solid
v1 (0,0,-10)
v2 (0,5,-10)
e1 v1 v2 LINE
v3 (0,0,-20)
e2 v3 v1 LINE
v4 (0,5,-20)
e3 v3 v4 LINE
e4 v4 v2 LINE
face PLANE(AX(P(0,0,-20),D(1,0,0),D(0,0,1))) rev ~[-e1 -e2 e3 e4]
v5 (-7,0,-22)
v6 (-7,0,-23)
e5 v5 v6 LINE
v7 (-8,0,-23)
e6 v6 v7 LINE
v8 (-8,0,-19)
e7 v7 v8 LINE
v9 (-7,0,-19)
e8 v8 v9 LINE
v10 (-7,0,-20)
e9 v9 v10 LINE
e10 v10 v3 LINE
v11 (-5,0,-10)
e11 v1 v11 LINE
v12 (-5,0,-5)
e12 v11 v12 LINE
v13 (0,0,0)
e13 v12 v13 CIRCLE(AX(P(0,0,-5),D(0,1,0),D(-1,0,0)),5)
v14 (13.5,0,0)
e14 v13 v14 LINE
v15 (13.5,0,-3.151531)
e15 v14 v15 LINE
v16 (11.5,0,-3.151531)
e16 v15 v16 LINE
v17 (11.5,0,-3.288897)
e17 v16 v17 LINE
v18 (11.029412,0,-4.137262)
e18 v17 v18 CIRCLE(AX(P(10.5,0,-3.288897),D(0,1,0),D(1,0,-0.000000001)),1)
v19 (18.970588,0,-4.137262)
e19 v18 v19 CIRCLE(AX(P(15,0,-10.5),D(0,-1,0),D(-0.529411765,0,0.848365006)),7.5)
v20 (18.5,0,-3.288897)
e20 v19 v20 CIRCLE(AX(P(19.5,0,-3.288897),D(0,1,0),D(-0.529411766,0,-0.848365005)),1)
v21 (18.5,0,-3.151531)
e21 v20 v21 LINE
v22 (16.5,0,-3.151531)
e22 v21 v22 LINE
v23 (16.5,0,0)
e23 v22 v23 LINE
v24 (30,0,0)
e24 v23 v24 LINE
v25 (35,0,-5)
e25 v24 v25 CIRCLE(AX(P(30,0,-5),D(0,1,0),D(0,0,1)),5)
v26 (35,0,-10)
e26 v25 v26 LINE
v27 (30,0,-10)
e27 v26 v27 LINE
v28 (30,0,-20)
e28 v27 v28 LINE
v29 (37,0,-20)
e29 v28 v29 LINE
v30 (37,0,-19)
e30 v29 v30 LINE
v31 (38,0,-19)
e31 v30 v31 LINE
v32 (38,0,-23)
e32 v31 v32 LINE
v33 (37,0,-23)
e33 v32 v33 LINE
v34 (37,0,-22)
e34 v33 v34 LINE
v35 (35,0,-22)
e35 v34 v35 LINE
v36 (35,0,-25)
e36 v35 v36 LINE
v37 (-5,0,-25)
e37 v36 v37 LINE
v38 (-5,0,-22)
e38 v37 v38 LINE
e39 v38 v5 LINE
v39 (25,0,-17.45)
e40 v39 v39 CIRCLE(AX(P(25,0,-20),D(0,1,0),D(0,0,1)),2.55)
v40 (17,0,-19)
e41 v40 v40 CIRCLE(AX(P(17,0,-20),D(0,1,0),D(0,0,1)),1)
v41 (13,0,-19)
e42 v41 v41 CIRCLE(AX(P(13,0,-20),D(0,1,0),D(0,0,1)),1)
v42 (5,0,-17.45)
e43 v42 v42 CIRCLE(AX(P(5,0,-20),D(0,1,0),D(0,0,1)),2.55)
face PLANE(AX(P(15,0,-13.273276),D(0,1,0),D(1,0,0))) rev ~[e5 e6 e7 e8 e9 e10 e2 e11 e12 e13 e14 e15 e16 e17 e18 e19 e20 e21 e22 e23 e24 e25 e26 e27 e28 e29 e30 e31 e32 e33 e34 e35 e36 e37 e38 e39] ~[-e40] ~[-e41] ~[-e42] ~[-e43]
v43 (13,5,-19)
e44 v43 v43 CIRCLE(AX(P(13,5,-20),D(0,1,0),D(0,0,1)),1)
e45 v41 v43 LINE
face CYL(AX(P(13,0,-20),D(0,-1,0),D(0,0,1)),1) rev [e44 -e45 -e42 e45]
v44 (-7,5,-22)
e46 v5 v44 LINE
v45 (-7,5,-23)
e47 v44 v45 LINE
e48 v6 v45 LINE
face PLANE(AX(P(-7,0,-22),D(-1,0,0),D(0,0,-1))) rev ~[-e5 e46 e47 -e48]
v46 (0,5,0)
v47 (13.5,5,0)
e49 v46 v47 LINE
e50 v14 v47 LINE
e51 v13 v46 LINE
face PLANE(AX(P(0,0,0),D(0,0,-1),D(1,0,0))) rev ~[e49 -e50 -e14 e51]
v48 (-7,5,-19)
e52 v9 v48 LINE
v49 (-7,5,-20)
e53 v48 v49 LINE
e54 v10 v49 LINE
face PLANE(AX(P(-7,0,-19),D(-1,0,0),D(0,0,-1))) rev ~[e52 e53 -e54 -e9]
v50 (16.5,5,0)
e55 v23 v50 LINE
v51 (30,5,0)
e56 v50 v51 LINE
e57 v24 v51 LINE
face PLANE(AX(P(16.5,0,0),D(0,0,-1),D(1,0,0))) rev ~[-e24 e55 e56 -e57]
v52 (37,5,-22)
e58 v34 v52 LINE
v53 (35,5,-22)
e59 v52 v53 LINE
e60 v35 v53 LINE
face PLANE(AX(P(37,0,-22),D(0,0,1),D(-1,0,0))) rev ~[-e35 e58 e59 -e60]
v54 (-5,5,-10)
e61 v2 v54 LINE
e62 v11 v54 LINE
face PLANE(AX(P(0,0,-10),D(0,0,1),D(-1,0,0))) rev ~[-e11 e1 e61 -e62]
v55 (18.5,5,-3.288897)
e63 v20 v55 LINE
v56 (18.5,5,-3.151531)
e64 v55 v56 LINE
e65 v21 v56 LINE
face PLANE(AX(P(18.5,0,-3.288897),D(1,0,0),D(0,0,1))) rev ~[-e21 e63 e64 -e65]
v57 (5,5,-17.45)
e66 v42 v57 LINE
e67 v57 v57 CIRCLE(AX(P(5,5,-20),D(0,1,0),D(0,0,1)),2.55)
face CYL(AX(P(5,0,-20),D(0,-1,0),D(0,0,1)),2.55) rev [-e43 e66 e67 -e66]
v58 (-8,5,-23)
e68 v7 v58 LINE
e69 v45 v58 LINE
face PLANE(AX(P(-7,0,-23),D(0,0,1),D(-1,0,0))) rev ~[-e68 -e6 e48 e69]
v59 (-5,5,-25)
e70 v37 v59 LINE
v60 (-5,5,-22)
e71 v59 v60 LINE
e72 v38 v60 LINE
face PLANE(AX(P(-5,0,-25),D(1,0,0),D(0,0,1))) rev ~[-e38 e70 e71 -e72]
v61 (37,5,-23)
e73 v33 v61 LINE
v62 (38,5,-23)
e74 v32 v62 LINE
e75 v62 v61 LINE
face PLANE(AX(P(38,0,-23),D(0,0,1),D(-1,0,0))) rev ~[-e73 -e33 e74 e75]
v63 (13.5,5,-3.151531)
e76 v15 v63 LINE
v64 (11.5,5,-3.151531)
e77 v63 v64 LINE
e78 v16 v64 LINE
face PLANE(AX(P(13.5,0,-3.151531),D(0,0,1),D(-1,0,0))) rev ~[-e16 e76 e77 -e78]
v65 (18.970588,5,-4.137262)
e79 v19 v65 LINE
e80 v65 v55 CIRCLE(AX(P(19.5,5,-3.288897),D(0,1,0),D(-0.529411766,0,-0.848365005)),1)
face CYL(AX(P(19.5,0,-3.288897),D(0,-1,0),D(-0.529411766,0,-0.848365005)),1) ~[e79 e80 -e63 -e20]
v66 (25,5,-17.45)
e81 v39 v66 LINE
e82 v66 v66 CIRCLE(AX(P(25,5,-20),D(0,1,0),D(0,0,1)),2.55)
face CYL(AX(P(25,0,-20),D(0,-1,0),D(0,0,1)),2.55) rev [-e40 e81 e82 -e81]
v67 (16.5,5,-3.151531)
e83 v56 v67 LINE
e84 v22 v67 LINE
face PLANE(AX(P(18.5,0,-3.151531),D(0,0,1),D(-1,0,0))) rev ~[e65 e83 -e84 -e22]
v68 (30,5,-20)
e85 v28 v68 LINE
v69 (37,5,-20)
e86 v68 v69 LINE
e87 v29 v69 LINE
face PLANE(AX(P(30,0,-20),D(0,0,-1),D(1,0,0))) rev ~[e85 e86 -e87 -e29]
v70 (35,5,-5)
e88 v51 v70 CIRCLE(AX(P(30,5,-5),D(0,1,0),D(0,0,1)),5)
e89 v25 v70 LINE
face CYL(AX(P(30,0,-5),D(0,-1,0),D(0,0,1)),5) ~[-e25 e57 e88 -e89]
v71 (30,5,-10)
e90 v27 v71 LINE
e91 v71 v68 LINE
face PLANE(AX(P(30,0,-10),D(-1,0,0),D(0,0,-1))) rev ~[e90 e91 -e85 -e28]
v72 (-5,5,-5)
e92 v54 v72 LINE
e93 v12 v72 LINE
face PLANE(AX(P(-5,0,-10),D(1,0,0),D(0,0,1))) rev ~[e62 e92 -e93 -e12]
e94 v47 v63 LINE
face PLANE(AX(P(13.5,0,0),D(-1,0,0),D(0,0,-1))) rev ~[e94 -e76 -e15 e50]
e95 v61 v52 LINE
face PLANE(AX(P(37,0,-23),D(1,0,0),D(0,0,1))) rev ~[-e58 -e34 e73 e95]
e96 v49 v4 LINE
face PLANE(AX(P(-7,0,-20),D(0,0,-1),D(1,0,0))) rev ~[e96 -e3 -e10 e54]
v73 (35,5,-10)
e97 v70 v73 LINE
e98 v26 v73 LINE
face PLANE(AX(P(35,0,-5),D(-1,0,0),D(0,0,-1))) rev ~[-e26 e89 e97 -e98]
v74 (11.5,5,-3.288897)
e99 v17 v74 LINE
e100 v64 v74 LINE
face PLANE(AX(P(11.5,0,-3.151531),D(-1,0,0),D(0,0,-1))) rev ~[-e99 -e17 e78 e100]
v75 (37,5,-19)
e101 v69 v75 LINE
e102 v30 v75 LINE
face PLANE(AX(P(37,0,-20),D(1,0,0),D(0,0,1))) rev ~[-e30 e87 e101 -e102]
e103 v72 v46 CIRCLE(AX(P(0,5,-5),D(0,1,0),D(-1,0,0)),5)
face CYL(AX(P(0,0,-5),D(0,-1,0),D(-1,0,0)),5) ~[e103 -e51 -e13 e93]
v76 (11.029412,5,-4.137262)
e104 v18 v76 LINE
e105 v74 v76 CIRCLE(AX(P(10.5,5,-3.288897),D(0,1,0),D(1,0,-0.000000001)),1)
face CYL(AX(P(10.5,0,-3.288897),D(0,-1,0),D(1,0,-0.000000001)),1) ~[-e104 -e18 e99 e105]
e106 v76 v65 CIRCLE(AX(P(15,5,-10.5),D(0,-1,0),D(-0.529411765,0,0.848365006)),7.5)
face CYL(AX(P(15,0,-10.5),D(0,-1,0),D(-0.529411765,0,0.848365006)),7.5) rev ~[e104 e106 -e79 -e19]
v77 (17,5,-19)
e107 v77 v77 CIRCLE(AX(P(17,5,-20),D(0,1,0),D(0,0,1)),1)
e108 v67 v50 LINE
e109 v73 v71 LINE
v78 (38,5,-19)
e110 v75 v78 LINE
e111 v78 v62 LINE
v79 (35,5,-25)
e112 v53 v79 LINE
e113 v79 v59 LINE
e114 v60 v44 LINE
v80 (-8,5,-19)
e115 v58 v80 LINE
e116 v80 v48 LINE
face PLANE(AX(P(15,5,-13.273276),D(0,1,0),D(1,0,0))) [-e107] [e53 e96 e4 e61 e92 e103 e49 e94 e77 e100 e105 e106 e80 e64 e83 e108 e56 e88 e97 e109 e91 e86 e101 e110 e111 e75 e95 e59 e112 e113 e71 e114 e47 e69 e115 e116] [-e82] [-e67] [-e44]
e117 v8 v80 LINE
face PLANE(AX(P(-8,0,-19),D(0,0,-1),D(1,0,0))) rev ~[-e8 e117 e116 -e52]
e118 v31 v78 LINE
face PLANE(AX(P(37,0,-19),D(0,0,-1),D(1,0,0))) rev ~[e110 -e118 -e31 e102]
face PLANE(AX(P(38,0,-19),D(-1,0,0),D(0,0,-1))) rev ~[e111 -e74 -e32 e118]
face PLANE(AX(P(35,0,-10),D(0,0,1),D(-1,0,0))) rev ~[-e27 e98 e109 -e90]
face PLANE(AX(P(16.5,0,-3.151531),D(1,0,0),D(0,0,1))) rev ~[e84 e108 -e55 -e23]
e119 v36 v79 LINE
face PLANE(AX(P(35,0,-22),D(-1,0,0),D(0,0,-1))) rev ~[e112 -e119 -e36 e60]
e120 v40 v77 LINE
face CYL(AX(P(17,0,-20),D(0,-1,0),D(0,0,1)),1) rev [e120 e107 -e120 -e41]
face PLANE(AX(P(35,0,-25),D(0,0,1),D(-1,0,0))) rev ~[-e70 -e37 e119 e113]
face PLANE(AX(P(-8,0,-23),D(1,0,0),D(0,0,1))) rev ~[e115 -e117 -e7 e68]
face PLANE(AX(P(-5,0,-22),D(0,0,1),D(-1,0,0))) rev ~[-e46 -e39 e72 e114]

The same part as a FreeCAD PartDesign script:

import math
import FreeCAD as App
import Part
import Sketcher
from FreeCAD import Vector
Q = App.Units.Quantity

doc = App.newDocument("Part")
body = doc.addObject("PartDesign::Body", "Body")

# Sketch on XZ plane
sketch1 = body.newObject("Sketcher::SketchObject", "Sketch")
sketch1.AttachmentSupport = (doc.getObject("XZ_Plane"), [""])
sketch1.MapMode = "FlatFace"
sketch1.addGeometry([
    Part.LineSegment(Vector(37, -20, 0), Vector(37, -19, 0)),  # 0
    Part.LineSegment(Vector(37, -19, 0), Vector(38, -19, 0)),  # 1
    Part.LineSegment(Vector(38, -19, 0), Vector(38, -23, 0)),  # 2
    Part.LineSegment(Vector(38, -23, 0), Vector(37, -23, 0)),  # 3
    Part.LineSegment(Vector(37, -23, 0), Vector(37, -22, 0)),  # 4
    Part.LineSegment(Vector(37, -22, 0), Vector(35, -22, 0)),  # 5
    Part.LineSegment(Vector(35, -22, 0), Vector(35, -25, 0)),  # 6
    Part.LineSegment(Vector(35, -25, 0), Vector(-5, -25, 0)),  # 7
    Part.LineSegment(Vector(-5, -25, 0), Vector(-5, -22, 0)),  # 8
    Part.LineSegment(Vector(-5, -22, 0), Vector(-7, -22, 0)),  # 9
    Part.LineSegment(Vector(-7, -22, 0), Vector(-7, -23, 0)),  # 10
    Part.LineSegment(Vector(-7, -23, 0), Vector(-8, -23, 0)),  # 11
    Part.LineSegment(Vector(-8, -23, 0), Vector(-8, -19, 0)),  # 12
    Part.LineSegment(Vector(-8, -19, 0), Vector(-7, -19, 0)),  # 13
    Part.LineSegment(Vector(-7, -19, 0), Vector(-7, -20, 0)),  # 14
    Part.LineSegment(Vector(-7, -20, 0), Vector(0, -20, 0)),  # 15
    Part.LineSegment(Vector(0, -20, 0), Vector(0, -10, 0)),  # 16
    Part.LineSegment(Vector(0, -10, 0), Vector(-5, -10, 0)),  # 17
    Part.LineSegment(Vector(-5, -10, 0), Vector(-5, -5, 0)),  # 18
    Part.ArcOfCircle(Part.Circle(Vector(0, -5, 0), Vector(0, 0, 1), 5), math.radians(90), math.radians(180)),  # 19
    Part.LineSegment(Vector(0, 0, 0), Vector(13.5, 0, 0)),  # 20
    Part.LineSegment(Vector(13.5, 0, 0), Vector(13.5, -3.15, 0)),  # 21
    Part.LineSegment(Vector(13.5, -3.15, 0), Vector(11.5, -3.15, 0)),  # 22
    Part.LineSegment(Vector(11.5, -3.15, 0), Vector(11.5, -3.29, 0)),  # 23
    Part.ArcOfCircle(Part.Circle(Vector(10.5, -3.29, 0), Vector(0, 0, 1), 1), math.radians(-58), math.radians(0)),  # 24
    Part.ArcOfCircle(Part.Circle(Vector(15, -10.5, 0), Vector(0, 0, 1), 7.5), math.radians(122), math.radians(418)),  # 25
    Part.ArcOfCircle(Part.Circle(Vector(19.5, -3.29, 0), Vector(0, 0, 1), 1), math.radians(-180), math.radians(-122)),  # 26
    Part.LineSegment(Vector(18.5, -3.29, 0), Vector(18.5, -3.15, 0)),  # 27
    Part.LineSegment(Vector(18.5, -3.15, 0), Vector(16.5, -3.15, 0)),  # 28
    Part.LineSegment(Vector(16.5, -3.15, 0), Vector(16.5, 0, 0)),  # 29
    Part.LineSegment(Vector(16.5, 0, 0), Vector(30, 0, 0)),  # 30
    Part.ArcOfCircle(Part.Circle(Vector(30, -5, 0), Vector(0, 0, 1), 5), math.radians(0), math.radians(90)),  # 31
    Part.LineSegment(Vector(35, -5, 0), Vector(35, -10, 0)),  # 32
    Part.LineSegment(Vector(35, -10, 0), Vector(30, -10, 0)),  # 33
    Part.LineSegment(Vector(30, -10, 0), Vector(30, -20, 0)),  # 34
    Part.LineSegment(Vector(30, -20, 0), Vector(37, -20, 0)),  # 35
    Part.Circle(Vector(5, -20, 0), Vector(0, 0, 1), 2.55),  # 36
    Part.Circle(Vector(13, -20, 0), Vector(0, 0, 1), 1),  # 37
    Part.Circle(Vector(17, -20, 0), Vector(0, 0, 1), 1),  # 38
    Part.Circle(Vector(25, -20, 0), Vector(0, 0, 1), 2.55),  # 39
], False)
sketch1.addConstraint([
    Sketcher.Constraint("Coincident", 0, 2, 1, 1),
    Sketcher.Constraint("Coincident", 1, 2, 2, 1),
    Sketcher.Constraint("Coincident", 2, 2, 3, 1),
    Sketcher.Constraint("Coincident", 3, 2, 4, 1),
    Sketcher.Constraint("Coincident", 4, 2, 5, 1),
    Sketcher.Constraint("Coincident", 5, 2, 6, 1),
    Sketcher.Constraint("Coincident", 6, 2, 7, 1),
    Sketcher.Constraint("Coincident", 7, 2, 8, 1),
    Sketcher.Constraint("Coincident", 8, 2, 9, 1),
    Sketcher.Constraint("Coincident", 9, 2, 10, 1),
    Sketcher.Constraint("Coincident", 10, 2, 11, 1),
    Sketcher.Constraint("Coincident", 11, 2, 12, 1),
    Sketcher.Constraint("Coincident", 12, 2, 13, 1),
    Sketcher.Constraint("Coincident", 13, 2, 14, 1),
    Sketcher.Constraint("Coincident", 14, 2, 15, 1),
    Sketcher.Constraint("Coincident", 15, 2, 16, 1),
    Sketcher.Constraint("Coincident", 16, 2, 17, 1),
    Sketcher.Constraint("Coincident", 17, 2, 18, 1),
    Sketcher.Constraint("Tangent", 18, 2, 19, 2),
    Sketcher.Constraint("Tangent", 19, 1, 20, 1),
    Sketcher.Constraint("Coincident", 20, 2, 21, 1),
    Sketcher.Constraint("Coincident", 21, 2, 22, 1),
    Sketcher.Constraint("Coincident", 22, 2, 23, 1),
    Sketcher.Constraint("Tangent", 23, 2, 24, 2),
    Sketcher.Constraint("Tangent", 24, 1, 25, 1),
    Sketcher.Constraint("Tangent", 25, 2, 26, 2),
    Sketcher.Constraint("Tangent", 26, 1, 27, 1),
    Sketcher.Constraint("Coincident", 27, 2, 28, 1),
    Sketcher.Constraint("Coincident", 28, 2, 29, 1),
    Sketcher.Constraint("Coincident", 29, 2, 30, 1),
    Sketcher.Constraint("Tangent", 30, 2, 31, 2),
    Sketcher.Constraint("Tangent", 31, 1, 32, 1),
    Sketcher.Constraint("Coincident", 32, 2, 33, 1),
    Sketcher.Constraint("Coincident", 33, 2, 34, 1),
    Sketcher.Constraint("Coincident", 34, 2, 35, 1),
    Sketcher.Constraint("Coincident", 35, 2, 0, 1),
    Sketcher.Constraint("Vertical", 0),
    Sketcher.Constraint("Horizontal", 1),
    Sketcher.Constraint("Vertical", 2),
    Sketcher.Constraint("Horizontal", 3),
    Sketcher.Constraint("Vertical", 4),
    Sketcher.Constraint("Horizontal", 5),
    Sketcher.Constraint("Vertical", 6),
    Sketcher.Constraint("Horizontal", 7),
    Sketcher.Constraint("Vertical", 8),
    Sketcher.Constraint("Horizontal", 9),
    Sketcher.Constraint("Vertical", 10),
    Sketcher.Constraint("Horizontal", 11),
    Sketcher.Constraint("Vertical", 12),
    Sketcher.Constraint("Horizontal", 13),
    Sketcher.Constraint("Vertical", 14),
    Sketcher.Constraint("Horizontal", 15),
    Sketcher.Constraint("Vertical", 16),
    Sketcher.Constraint("Horizontal", 17),
    Sketcher.Constraint("Vertical", 18),
    Sketcher.Constraint("Horizontal", 20),
    Sketcher.Constraint("Vertical", 21),
    Sketcher.Constraint("Horizontal", 22),
    Sketcher.Constraint("Vertical", 23),
    Sketcher.Constraint("Vertical", 27),
    Sketcher.Constraint("Horizontal", 28),
    Sketcher.Constraint("Vertical", 29),
    Sketcher.Constraint("Horizontal", 30),
    Sketcher.Constraint("Vertical", 32),
    Sketcher.Constraint("Horizontal", 33),
    Sketcher.Constraint("Vertical", 34),
    Sketcher.Constraint("Horizontal", 35),
    Sketcher.Constraint("Coincident", 19, 1, -1, 1),
    Sketcher.Constraint("Equal", 24, 26),
    Sketcher.Constraint("Equal", 19, 31),
    Sketcher.Constraint("Equal", 26, 37),
    Sketcher.Constraint("Equal", 37, 38),
    Sketcher.Constraint("Equal", 36, 39),
    Sketcher.Constraint("PointOnObject", 15, 2, -2),
    Sketcher.Constraint("PointOnObject", 29, 2, -1),
    Sketcher.Constraint("Horizontal", 24, 3, 26, 3),
    Sketcher.Constraint("Horizontal", 36, 3, 37, 3),
    Sketcher.Constraint("Horizontal", 37, 3, 38, 3),
    Sketcher.Constraint("Horizontal", 38, 3, 39, 3),
    Sketcher.Constraint("Horizontal", 5, 2, 8, 2),
    Sketcher.Constraint("Horizontal", 3, 2, 10, 2),
    Sketcher.Constraint("Horizontal", 1, 2, 12, 2),
    Sketcher.Constraint("Horizontal", 39, 3, 14, 2),
    Sketcher.Constraint("Horizontal", 22, 2, 27, 2),
    Sketcher.Constraint("Horizontal", 17, 2, 32, 2),
    Sketcher.Constraint("Horizontal", 15, 2, 34, 2),
    Sketcher.Constraint("Vertical", 0, 2, 3, 2),
    Sketcher.Constraint("Vertical", 10, 2, 13, 2),
    Sketcher.Constraint("Vertical", 8, 2, 17, 2),
    Sketcher.Constraint("Vertical", 6, 2, 31, 1),
    Sketcher.Constraint("Vertical", 30, 2, 33, 2),
    Sketcher.Constraint("Equal", 5, 9),
    Sketcher.Constraint("Equal", 3, 11),
    Sketcher.Constraint("Equal", 9, 22),
    Sketcher.Constraint("Equal", 22, 28),
    Sketcher.Constraint("Equal", 20, 30),
    Sketcher.Constraint("Equal", 13, 0),
    Sketcher.Constraint("Equal", 0, 4),
    Sketcher.Constraint("Equal", 33, 18),
    Sketcher.Constraint("Diameter", 37, Q("2 mm")),
    Sketcher.Constraint("Radius", 19, Q("5 mm")),
    Sketcher.Constraint("Diameter", 36, Q("5.1 mm")),
    Sketcher.Constraint("Radius", 25, Q("7.5 mm")),
    Sketcher.Constraint("DistanceX", 1, 1, 1, 2, Q("1 mm")),
    Sketcher.Constraint("DistanceX", 5, 2, 5, 1, Q("2 mm")),
    Sketcher.Constraint("DistanceX", 7, 2, 7, 1, Q("40 mm")),
    Sketcher.Constraint("DistanceY", 2, 2, 2, 1, Q("4 mm")),
    Sketcher.Constraint("DistanceY", 6, 2, 6, 1, Q("3 mm")),
    Sketcher.Constraint("DistanceY", 16, 1, 16, 2, Q("10 mm")),
    Sketcher.Constraint("DistanceX", 20, 1, 20, 2, Q("13.5 mm")),
    Sketcher.Constraint("DistanceX", -1, 1, 36, 3, Q("5 mm")),
    Sketcher.Constraint("DistanceX", -1, 1, 37, 3, Q("13 mm")),
    Sketcher.Constraint("DistanceX", -1, 1, 38, 3, Q("17 mm")),
    Sketcher.Constraint("DistanceX", -1, 1, 39, 3, Q("25 mm")),
    Sketcher.Constraint("DistanceY", 25, 3, -1, 1, Q("10.5 mm")),
    Sketcher.Constraint("DistanceY", 21, 2, 21, 1, Q("3.151531 mm")),
])
pad1 = body.newObject("PartDesign::Pad", "Pad")
pad1.Profile = sketch1
pad1.Length = 5
pad1.Reversed = True

doc.recompute()
